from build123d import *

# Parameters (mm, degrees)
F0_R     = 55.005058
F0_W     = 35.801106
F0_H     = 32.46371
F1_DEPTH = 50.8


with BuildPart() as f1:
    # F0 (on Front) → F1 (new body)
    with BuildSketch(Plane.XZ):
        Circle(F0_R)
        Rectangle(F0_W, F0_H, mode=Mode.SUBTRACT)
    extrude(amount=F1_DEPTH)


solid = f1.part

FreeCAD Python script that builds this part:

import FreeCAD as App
import Part
import Sketcher
Q = App.Units.Quantity

doc = App.newDocument("Part")
body = doc.addObject("PartDesign::Body", "Body")

# Sketch on XZ plane
sketch1 = doc.addObject("Sketcher::SketchObject", "Sketch")
body.addObject(sketch1)
sketch1.AttachmentSupport = (doc.XZ_Plane, [""])
sketch1.MapMode = "FlatFace"
sketch1.addGeometry([
    Part.Circle(App.Vector(0, 0, 0), App.Vector(0, 0, 1), 55.005058),  # 0
    Part.LineSegment(App.Vector(17.900553, -16.231855, 0), App.Vector(-17.900553, -16.231855, 0)),  # 1
    Part.LineSegment(App.Vector(-17.900553, -16.231855, 0), App.Vector(-17.900553, 16.231855, 0)),  # 2
    Part.LineSegment(App.Vector(-17.900553, 16.231855, 0), App.Vector(17.900553, 16.231855, 0)),  # 3
    Part.LineSegment(App.Vector(17.900553, 16.231855, 0), App.Vector(17.900553, -16.231855, 0)),  # 4
], False)
sketch1.addConstraint([
    Sketcher.Constraint("Coincident", 1, 2, 2, 1),
    Sketcher.Constraint("Coincident", 2, 2, 3, 1),
    Sketcher.Constraint("Coincident", 3, 2, 4, 1),
    Sketcher.Constraint("Coincident", 4, 2, 1, 1),
    Sketcher.Constraint("Horizontal", 1),
    Sketcher.Constraint("Vertical", 2),
    Sketcher.Constraint("Horizontal", 3),
    Sketcher.Constraint("Vertical", 4),
    Sketcher.Constraint("Coincident", 0, 3, -1, 1),
    Sketcher.Constraint("Symmetric", 1, 2, 3, 2, -1, 1),
    Sketcher.Constraint("Diameter", 0, Q("110.010116 mm")),
    Sketcher.Constraint("DistanceY", 2, 1, 2, 2, Q("32.46371 mm")),
    Sketcher.Constraint("DistanceX", 1, 2, 1, 1, Q("35.801106 mm")),
])
pad1 = doc.addObject("PartDesign::Pad", "Pad")
body.addObject(pad1)
pad1.Profile = sketch1
pad1.Length = Q("2 in")

doc.recompute()
